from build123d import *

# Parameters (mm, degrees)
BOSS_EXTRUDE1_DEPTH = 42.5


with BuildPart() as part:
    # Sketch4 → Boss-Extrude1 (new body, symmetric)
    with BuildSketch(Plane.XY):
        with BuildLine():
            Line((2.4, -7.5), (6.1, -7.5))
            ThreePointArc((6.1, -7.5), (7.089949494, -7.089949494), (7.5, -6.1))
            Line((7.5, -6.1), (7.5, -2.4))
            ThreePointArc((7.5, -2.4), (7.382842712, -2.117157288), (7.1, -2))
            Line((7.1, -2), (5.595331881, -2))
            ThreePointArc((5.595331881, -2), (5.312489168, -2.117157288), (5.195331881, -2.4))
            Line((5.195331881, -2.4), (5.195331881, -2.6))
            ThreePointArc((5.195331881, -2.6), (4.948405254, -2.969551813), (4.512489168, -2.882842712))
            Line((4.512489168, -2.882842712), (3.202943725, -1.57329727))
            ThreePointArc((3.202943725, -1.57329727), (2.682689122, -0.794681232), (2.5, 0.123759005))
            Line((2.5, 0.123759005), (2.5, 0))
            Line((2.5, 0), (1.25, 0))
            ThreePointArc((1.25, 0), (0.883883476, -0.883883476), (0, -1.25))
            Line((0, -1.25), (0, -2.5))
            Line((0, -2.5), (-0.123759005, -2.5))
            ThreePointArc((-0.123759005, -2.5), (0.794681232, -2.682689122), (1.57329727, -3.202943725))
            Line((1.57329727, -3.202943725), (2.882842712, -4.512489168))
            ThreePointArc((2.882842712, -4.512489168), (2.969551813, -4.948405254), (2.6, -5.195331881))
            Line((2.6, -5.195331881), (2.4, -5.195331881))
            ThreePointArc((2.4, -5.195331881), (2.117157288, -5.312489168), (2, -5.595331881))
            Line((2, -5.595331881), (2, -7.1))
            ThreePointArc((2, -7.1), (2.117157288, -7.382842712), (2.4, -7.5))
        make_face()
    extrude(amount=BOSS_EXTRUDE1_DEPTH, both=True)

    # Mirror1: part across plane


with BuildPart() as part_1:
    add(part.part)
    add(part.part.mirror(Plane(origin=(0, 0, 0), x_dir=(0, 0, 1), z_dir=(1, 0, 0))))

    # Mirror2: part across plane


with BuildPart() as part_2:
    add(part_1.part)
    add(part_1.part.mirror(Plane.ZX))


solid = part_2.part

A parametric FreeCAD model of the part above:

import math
import FreeCAD as App
import Part
import Sketcher
from FreeCAD import Vector
Q = App.Units.Quantity

doc = App.newDocument("Part")
body = doc.addObject("PartDesign::Body", "Body")

# Sketch on XY plane
sketch1 = body.newObject("Sketcher::SketchObject", "Sketch")
sketch1.AttachmentSupport = (doc.getObject("XY_Plane"), [""])
sketch1.MapMode = "FlatFace"
sketch1.addGeometry([
    Part.LineSegment(Vector(2.4, -7.5, 0), Vector(6.1, -7.5, 0)),  # 0
    Part.ArcOfCircle(Part.Circle(Vector(6.1, -6.1, 0), Vector(0, 0, 1), 1.4), math.radians(-90), math.radians(0)),  # 1
    Part.LineSegment(Vector(7.5, -6.1, 0), Vector(7.5, -2.4, 0)),  # 2
    Part.ArcOfCircle(Part.Circle(Vector(7.1, -2.4, 0), Vector(0, 0, 1), 0.4), math.radians(0), math.radians(90)),  # 3
    Part.LineSegment(Vector(7.1, -2, 0), Vector(5.6, -2, 0)),  # 4
    Part.ArcOfCircle(Part.Circle(Vector(5.6, -2.4, 0), Vector(0, 0, 1), 0.4), math.radians(90), math.radians(180)),  # 5
    Part.LineSegment(Vector(5.2, -2.4, 0), Vector(5.2, -2.6, 0)),  # 6
    Part.ArcOfCircle(Part.Circle(Vector(4.8, -2.6, 0), Vector(0, 0, 1), 0.4), math.radians(-135), math.radians(0)),  # 7
    Part.LineSegment(Vector(4.51, -2.88, 0), Vector(3.2, -1.57, 0)),  # 8
    Part.ArcOfCircle(Part.Circle(Vector(4.9, 0.12, 0), Vector(0, 0, 1), 2.4), math.radians(-180), math.radians(-135)),  # 9
    Part.LineSegment(Vector(2.5, 0.12, 0), Vector(2.5, 0, 0)),  # 10
    Part.LineSegment(Vector(2.5, 0, 0), Vector(1.25, 0, 0)),  # 11
    Part.ArcOfCircle(Part.Circle(Vector(0, 0, 0), Vector(0, 0, 1), 1.25), math.radians(-90), math.radians(0)),  # 12
    Part.LineSegment(Vector(0, -1.25, 0), Vector(0, -2.5, 0)),  # 13
    Part.LineSegment(Vector(0, -2.5, 0), Vector(-0.12, -2.5, 0)),  # 14
    Part.ArcOfCircle(Part.Circle(Vector(-0.12, -4.9, 0), Vector(0, 0, 1), 2.4), math.radians(45), math.radians(90)),  # 15
    Part.LineSegment(Vector(1.57, -3.2, 0), Vector(2.88, -4.51, 0)),  # 16
    Part.ArcOfCircle(Part.Circle(Vector(2.6, -4.8, 0), Vector(0, 0, 1), 0.4), math.radians(-90), math.radians(45)),  # 17
    Part.LineSegment(Vector(2.6, -5.2, 0), Vector(2.4, -5.2, 0)),  # 18
    Part.ArcOfCircle(Part.Circle(Vector(2.4, -5.6, 0), Vector(0, 0, 1), 0.4), math.radians(90), math.radians(180)),  # 19
    Part.LineSegment(Vector(2, -5.6, 0), Vector(2, -7.1, 0)),  # 20
    Part.ArcOfCircle(Part.Circle(Vector(2.4, -7.1, 0), Vector(0, 0, 1), 0.4), math.radians(-180), math.radians(-90)),  # 21
], False)
sketch1.addConstraint([
    Sketcher.Constraint("Tangent", 0, 2, 1, 1),
    Sketcher.Constraint("Tangent", 1, 2, 2, 1),
    Sketcher.Constraint("Tangent", 2, 2, 3, 1),
    Sketcher.Constraint("Tangent", 3, 2, 4, 1),
    Sketcher.Constraint("Tangent", 4, 2, 5, 1),
    Sketcher.Constraint("Tangent", 5, 2, 6, 1),
    Sketcher.Constraint("Tangent", 6, 2, 7, 2),
    Sketcher.Constraint("Tangent", 7, 1, 8, 1),
    Sketcher.Constraint("Tangent", 8, 2, 9, 2),
    Sketcher.Constraint("Tangent", 9, 1, 10, 1),
    Sketcher.Constraint("Coincident", 10, 2, 11, 1),
    Sketcher.Constraint("Coincident", 11, 2, 12, 2),
    Sketcher.Constraint("Coincident", 12, 1, 13, 1),
    Sketcher.Constraint("Coincident", 13, 2, 14, 1),
    Sketcher.Constraint("Tangent", 14, 2, 15, 2),
    Sketcher.Constraint("Tangent", 15, 1, 16, 1),
    Sketcher.Constraint("Tangent", 16, 2, 17, 2),
    Sketcher.Constraint("Tangent", 17, 1, 18, 1),
    Sketcher.Constraint("Tangent", 18, 2, 19, 1),
    Sketcher.Constraint("Tangent", 19, 2, 20, 1),
    Sketcher.Constraint("Tangent", 20, 2, 21, 1),
    Sketcher.Constraint("Tangent", 21, 2, 0, 1),
    Sketcher.Constraint("Horizontal", 0),
    Sketcher.Constraint("Vertical", 2),
    Sketcher.Constraint("Horizontal", 4),
    Sketcher.Constraint("Vertical", 6),
    Sketcher.Constraint("Vertical", 10),
    Sketcher.Constraint("Horizontal", 11),
    Sketcher.Constraint("Vertical", 13),
    Sketcher.Constraint("Horizontal", 14),
    Sketcher.Constraint("Horizontal", 18),
    Sketcher.Constraint("Vertical", 20),
    Sketcher.Constraint("Coincident", 12, 3, -1, 1),
    Sketcher.Constraint("Equal", 3, 5),
    Sketcher.Constraint("Equal", 5, 7),
    Sketcher.Constraint("Equal", 9, 15),
    Sketcher.Constraint("Equal", 7, 17),
    Sketcher.Constraint("Equal", 17, 19),
    Sketcher.Constraint("Equal", 19, 21),
    Sketcher.Constraint("PointOnObject", 10, 2, -1),
    Sketcher.Constraint("PointOnObject", 12, 1, -2),
    Sketcher.Constraint("Parallel", 8, 16),
    Sketcher.Constraint("Equal", 0, 2),
    Sketcher.Constraint("Equal", 18, 6),
    Sketcher.Constraint("Equal", 14, 10),
    Sketcher.Constraint("Equal", 11, 13),
    Sketcher.Constraint("Equal", 4, 20),
    Sketcher.Constraint("Equal", 8, 16),
    Sketcher.Constraint("Radius", 1, Q("1.4 mm")),
    Sketcher.Constraint("Radius", 3, Q("0.4 mm")),
    Sketcher.Constraint("Radius", 9, Q("2.4 mm")),
    Sketcher.Constraint("Radius", 12, Q("1.25 mm")),
    Sketcher.Constraint("DistanceX", 0, 1, 0, 2, Q("3.7 mm")),
    Sketcher.Constraint("DistanceX", 18, 2, 18, 1, Q("0.2 mm")),
    Sketcher.Constraint("DistanceY", 3, 2, -1, 1, Q("2 mm")),
    Sketcher.Constraint("DistanceX", 11, 2, 11, 1, Q("1.25 mm")),
    Sketcher.Constraint("DistanceX", 4, 2, 4, 1, Q("1.504668 mm")),
])
pad1 = body.newObject("PartDesign::Pad", "Pad")
pad1.Profile = sketch1
pad1.Length = 85
pad1.Midplane = True
body2 = doc.addObject("PartDesign::Body", "Body001")
doc.recompute()

body2.BaseFeature = body
doc.recompute()

mirroring = doc.addObject("Part::Mirroring", "Mirroring")
mirroring.Source = body
mirroring.Base = Vector(0, 0, 0)
mirroring.Normal = Vector(1, 0, 0)
body3 = doc.addObject("PartDesign::Body", "Body002")
body3.BaseFeature = mirroring
boolean = body2.newObject("PartDesign::Boolean", "Boolean")
boolean.Type = "Fuse"
boolean.addObjects([body3])
doc.recompute()
body4 = doc.addObject("PartDesign::Body", "Body003")
doc.recompute()

body4.BaseFeature = body2
doc.recompute()

mirroring2 = doc.addObject("Part::Mirroring", "Mirroring001")
mirroring2.Source = body2
mirroring2.Base = Vector(0, 0, 0)
mirroring2.Normal = Vector(0, 1, 0)
body5 = doc.addObject("PartDesign::Body", "Body004")
body5.BaseFeature = mirroring2
boolean2 = body4.newObject("PartDesign::Boolean", "Boolean001")
boolean2.Type = "Fuse"
boolean2.addObjects([body5])
doc.recompute()
mirroring.Visibility = False
mirroring2.Visibility = False

doc.recompute()
